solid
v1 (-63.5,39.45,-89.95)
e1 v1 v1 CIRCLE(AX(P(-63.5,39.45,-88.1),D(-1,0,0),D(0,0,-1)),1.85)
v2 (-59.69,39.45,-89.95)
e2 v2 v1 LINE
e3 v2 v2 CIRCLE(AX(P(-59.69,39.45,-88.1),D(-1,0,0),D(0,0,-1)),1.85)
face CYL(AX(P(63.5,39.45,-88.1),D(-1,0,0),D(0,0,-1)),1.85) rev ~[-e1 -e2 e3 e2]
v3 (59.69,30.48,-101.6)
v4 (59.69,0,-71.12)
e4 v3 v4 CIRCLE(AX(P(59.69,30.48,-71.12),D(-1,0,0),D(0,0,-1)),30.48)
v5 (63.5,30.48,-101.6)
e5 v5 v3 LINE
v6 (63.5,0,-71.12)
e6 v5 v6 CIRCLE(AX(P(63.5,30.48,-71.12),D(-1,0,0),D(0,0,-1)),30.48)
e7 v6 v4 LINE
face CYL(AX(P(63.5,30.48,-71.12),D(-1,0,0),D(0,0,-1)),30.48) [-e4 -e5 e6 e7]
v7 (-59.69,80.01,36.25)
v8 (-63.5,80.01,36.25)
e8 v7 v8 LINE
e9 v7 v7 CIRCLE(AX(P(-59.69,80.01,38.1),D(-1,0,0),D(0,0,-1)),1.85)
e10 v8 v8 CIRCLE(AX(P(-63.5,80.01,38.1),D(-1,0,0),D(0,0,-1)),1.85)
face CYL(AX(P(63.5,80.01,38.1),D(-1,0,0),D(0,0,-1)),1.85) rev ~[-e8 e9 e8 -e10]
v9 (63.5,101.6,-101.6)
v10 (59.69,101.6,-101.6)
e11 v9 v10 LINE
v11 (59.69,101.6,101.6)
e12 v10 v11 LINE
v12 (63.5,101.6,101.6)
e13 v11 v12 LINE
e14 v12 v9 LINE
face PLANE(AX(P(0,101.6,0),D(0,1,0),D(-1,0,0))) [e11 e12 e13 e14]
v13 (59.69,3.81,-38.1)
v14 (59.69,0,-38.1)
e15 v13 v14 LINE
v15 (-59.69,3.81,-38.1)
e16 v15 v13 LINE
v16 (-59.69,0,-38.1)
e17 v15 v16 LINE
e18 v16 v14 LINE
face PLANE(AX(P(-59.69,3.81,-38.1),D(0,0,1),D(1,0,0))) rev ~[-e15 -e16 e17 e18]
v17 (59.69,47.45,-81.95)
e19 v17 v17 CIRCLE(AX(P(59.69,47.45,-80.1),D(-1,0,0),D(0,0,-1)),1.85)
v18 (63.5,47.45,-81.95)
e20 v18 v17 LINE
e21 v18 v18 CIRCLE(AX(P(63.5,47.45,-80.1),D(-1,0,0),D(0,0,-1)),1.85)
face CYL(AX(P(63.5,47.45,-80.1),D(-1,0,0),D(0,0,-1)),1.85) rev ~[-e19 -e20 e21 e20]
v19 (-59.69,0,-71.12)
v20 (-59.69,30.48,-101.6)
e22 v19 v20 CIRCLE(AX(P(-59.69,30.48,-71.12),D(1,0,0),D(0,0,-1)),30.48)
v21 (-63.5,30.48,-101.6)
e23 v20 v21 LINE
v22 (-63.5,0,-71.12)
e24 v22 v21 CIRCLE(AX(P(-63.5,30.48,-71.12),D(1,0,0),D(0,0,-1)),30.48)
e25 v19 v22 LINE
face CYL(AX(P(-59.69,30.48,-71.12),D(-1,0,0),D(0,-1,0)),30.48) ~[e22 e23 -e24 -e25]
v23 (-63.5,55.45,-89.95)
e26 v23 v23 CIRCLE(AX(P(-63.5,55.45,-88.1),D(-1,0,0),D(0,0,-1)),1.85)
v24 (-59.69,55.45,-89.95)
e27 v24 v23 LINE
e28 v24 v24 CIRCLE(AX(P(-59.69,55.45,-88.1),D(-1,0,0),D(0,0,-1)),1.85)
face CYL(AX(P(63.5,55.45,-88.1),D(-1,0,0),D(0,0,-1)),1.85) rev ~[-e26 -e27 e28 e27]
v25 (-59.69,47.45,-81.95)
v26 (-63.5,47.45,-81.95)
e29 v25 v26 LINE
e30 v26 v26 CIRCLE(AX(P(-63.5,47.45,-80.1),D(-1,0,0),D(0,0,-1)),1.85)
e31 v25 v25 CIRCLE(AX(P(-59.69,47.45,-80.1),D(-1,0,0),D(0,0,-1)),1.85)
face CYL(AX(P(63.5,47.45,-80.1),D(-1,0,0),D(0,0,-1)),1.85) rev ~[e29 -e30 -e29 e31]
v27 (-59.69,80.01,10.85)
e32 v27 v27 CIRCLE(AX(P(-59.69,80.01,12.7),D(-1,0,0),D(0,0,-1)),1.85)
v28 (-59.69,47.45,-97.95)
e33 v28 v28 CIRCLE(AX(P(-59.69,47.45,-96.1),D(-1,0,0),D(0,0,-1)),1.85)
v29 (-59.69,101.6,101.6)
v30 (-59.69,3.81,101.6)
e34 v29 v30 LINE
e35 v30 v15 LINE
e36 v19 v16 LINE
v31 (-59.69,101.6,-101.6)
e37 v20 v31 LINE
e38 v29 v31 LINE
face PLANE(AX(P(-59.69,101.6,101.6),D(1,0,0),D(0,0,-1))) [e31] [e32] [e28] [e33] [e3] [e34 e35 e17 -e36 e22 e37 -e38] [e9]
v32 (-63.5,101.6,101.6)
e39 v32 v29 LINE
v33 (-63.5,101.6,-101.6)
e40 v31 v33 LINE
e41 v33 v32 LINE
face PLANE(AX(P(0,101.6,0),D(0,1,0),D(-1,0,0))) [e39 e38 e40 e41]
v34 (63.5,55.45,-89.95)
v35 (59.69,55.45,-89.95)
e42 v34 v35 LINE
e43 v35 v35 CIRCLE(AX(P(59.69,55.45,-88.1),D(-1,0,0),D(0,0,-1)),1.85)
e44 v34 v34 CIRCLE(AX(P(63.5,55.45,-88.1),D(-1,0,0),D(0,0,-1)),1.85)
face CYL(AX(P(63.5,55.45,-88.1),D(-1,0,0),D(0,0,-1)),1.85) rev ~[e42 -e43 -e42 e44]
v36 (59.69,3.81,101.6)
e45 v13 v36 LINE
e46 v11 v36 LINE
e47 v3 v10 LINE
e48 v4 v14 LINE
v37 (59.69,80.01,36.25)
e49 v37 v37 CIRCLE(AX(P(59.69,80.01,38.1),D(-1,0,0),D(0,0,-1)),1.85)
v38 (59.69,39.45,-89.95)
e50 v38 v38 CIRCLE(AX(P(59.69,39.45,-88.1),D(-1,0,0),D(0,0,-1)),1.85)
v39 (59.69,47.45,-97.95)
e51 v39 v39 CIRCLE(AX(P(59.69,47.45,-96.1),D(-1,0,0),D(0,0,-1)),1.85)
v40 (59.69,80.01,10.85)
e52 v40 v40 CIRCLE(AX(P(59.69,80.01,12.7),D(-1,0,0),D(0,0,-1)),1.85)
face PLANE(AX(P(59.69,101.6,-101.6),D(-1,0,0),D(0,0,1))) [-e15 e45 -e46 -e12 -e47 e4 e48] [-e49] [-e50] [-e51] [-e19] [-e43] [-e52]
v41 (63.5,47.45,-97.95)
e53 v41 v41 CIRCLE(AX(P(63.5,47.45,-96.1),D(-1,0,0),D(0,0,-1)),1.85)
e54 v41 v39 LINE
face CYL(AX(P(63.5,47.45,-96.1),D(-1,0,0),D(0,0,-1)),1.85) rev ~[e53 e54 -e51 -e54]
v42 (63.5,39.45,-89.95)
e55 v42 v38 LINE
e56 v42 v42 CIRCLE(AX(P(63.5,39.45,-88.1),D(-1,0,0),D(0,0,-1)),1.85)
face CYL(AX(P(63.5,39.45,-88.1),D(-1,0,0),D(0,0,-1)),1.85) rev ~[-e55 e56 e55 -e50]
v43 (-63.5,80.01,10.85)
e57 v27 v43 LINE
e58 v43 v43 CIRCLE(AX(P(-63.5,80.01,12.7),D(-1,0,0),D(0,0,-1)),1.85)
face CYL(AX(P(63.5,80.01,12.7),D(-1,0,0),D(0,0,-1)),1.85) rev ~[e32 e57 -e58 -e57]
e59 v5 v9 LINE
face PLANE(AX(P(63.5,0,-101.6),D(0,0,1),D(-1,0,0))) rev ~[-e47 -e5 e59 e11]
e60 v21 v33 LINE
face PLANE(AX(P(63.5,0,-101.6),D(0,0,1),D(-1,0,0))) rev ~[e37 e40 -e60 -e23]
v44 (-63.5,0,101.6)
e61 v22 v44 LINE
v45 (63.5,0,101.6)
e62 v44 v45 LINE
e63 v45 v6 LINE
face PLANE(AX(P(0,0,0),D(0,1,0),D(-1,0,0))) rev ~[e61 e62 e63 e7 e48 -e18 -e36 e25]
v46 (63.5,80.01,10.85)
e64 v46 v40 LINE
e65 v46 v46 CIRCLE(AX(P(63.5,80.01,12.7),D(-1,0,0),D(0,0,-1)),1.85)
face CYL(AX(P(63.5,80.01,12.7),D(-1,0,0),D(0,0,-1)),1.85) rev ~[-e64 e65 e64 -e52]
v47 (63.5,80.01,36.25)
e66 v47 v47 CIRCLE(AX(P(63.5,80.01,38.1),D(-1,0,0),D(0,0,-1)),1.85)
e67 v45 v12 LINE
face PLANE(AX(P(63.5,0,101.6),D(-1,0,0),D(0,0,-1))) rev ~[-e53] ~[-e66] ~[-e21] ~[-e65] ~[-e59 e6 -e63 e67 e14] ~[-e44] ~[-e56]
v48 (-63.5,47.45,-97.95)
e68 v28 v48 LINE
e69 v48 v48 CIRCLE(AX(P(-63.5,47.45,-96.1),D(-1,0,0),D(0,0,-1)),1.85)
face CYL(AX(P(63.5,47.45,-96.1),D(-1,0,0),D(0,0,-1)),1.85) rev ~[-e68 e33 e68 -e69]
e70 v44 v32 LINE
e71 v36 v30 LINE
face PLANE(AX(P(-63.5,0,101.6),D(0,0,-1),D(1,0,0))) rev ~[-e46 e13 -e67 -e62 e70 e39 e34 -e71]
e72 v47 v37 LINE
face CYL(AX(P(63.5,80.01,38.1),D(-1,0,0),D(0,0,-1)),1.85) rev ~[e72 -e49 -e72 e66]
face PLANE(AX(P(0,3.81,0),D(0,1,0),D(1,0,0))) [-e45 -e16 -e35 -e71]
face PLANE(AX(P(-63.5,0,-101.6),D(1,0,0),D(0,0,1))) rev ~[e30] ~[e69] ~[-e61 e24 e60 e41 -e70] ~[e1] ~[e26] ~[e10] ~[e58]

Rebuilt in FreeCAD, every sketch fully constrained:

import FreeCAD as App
import Part
import Sketcher
from FreeCAD import Vector
Q = App.Units.Quantity


def edges_at(feature, points):
    """Names of the edges that pass closest to the given points."""
    edges = feature.Shape.Edges
    near = lambda p: min(range(len(edges)), key=lambda i: edges[i].distToShape(Part.Vertex(*p))[0])
    return sorted({f"Edge{near(p) + 1}" for p in points})

doc = App.newDocument("Part")
body = doc.addObject("PartDesign::Body", "Body")

# Sketch on XZ plane
sketch1 = body.newObject("Sketcher::SketchObject", "Sketch")
sketch1.AttachmentSupport = (doc.getObject("XZ_Plane"), [""])
sketch1.MapMode = "FlatFace"
sketch1.addGeometry([
    Part.LineSegment(Vector(64, 102, 0), Vector(64, -102, 0)),
    Part.LineSegment(Vector(64, -102, 0), Vector(-64, -102, 0)),
    Part.LineSegment(Vector(-64, -102, 0), Vector(-64, 102, 0)),
    Part.LineSegment(Vector(-64, 102, 0), Vector(64, 102, 0)),
], False)
sketch1.addConstraint([
    Sketcher.Constraint("Coincident", 0, 2, 1, 1),
    Sketcher.Constraint("Coincident", 1, 2, 2, 1),
    Sketcher.Constraint("Coincident", 2, 2, 3, 1),
    Sketcher.Constraint("Coincident", 3, 2, 0, 1),
    Sketcher.Constraint("Vertical", 0),
    Sketcher.Constraint("Horizontal", 1),
    Sketcher.Constraint("Vertical", 2),
    Sketcher.Constraint("Horizontal", 3),
    Sketcher.Constraint("Symmetric", 0, 2, 2, 2, -1, 1),
    Sketcher.Constraint("DistanceX", 1, 2, 1, 1, Q("5 in")),
    Sketcher.Constraint("DistanceY", 0, 2, 0, 1, Q("8 in")),
])
pad1 = body.newObject("PartDesign::Pad", "Pad")
pad1.Profile = sketch1
pad1.Length = Q("4 in")
pad1.Reversed = True

# Sketch on XZ plane
sketch2 = body.newObject("Sketcher::SketchObject", "Sketch001")
sketch2.AttachmentSupport = (doc.getObject("XZ_Plane"), [""])
sketch2.MapMode = "FlatFace"
sketch2.AttachmentOffset = App.Placement(Vector(0, 0, -4 * 25.4), App.Rotation())
sketch2.addGeometry([
    Part.LineSegment(Vector(60, 102, 0), Vector(60, -102, 0)),
    Part.LineSegment(Vector(60, -102, 0), Vector(-60, -102, 0)),
    Part.LineSegment(Vector(-60, -102, 0), Vector(-60, 102, 0)),
    Part.LineSegment(Vector(-60, 102, 0), Vector(60, 102, 0)),
], False)
sketch2.addConstraint([
    Sketcher.Constraint("Coincident", 0, 2, 1, 1),
    Sketcher.Constraint("Coincident", 1, 2, 2, 1),
    Sketcher.Constraint("Coincident", 2, 2, 3, 1),
    Sketcher.Constraint("Coincident", 3, 2, 0, 1),
    Sketcher.Constraint("Vertical", 0),
    Sketcher.Constraint("Horizontal", 1),
    Sketcher.Constraint("Vertical", 2),
    Sketcher.Constraint("Horizontal", 3),
    Sketcher.Constraint("Symmetric", 0, 2, 2, 2, -1, 1),
    Sketcher.Constraint("DistanceX", 1, 2, 1, 1, Q("4.7 in")),
    Sketcher.Constraint("DistanceY", 0, 2, 0, 1, Q("8 in")),
])
pocket1 = body.newObject("PartDesign::Pocket", "Pocket")
pocket1.Profile = sketch2
pocket1.Length = Q("3.85 in")
pocket1.Reversed = True

# Sketch on XZ plane
sketch3 = body.newObject("Sketcher::SketchObject", "Sketch002")
sketch3.AttachmentSupport = (doc.getObject("XZ_Plane"), [""])
sketch3.MapMode = "FlatFace"
sketch3.AttachmentOffset = App.Placement(Vector(0, 0, -0.15 * 25.4), App.Rotation())
sketch3.addGeometry([
    Part.LineSegment(Vector(60, -38, 0), Vector(60, -102, 0)),
    Part.LineSegment(Vector(60, -102, 0), Vector(-60, -102, 0)),
    Part.LineSegment(Vector(-60, -102, 0), Vector(-60, -38, 0)),
    Part.LineSegment(Vector(-60, -38, 0), Vector(60, -38, 0)),
], False)
sketch3.addConstraint([
    Sketcher.Constraint("Coincident", 0, 2, 1, 1),
    Sketcher.Constraint("Coincident", 1, 2, 2, 1),
    Sketcher.Constraint("Coincident", 2, 2, 3, 1),
    Sketcher.Constraint("Coincident", 3, 2, 0, 1),
    Sketcher.Constraint("Vertical", 0),
    Sketcher.Constraint("Horizontal", 1),
    Sketcher.Constraint("Vertical", 2),
    Sketcher.Constraint("Horizontal", 3),
    Sketcher.Constraint("DistanceY", 0, 2, 0, 1, Q("2.5 in")),
    Sketcher.Constraint("DistanceX", 1, 2, 1, 1, Q("4.7 in")),
    Sketcher.Constraint("DistanceY", 0, 2, -1, 1, Q("4 in")),
    Sketcher.Constraint("DistanceX", -1, 1, 0, 2, Q("2.35 in")),
])
pocket2 = body.newObject("PartDesign::Pocket", "Pocket001")
pocket2.Profile = sketch3
pocket2.Length = Q("0.15 in")
pocket2.Reversed = True
doc.recompute()

fillet = body.newObject("PartDesign::Fillet", "Fillet")
fillet.Base = (pocket2, edges_at(pocket2, [(61.595, 0, -101.6), (-61.595, 0, -101.6)]))
fillet.Radius = Q("1.2 in")

# Sketch on YZ plane
sketch4 = body.newObject("Sketcher::SketchObject", "Sketch003")
sketch4.AttachmentSupport = (doc.getObject("YZ_Plane"), [""])
sketch4.MapMode = "FlatFace"
sketch4.AttachmentOffset = App.Placement(Vector(0, 0, 2.5 * 25.4), App.Rotation())
sketch4.addGeometry([
    Part.Circle(Vector(55.5, -88.1, 0), Vector(0, 0, 1), 1.9),
    Part.Circle(Vector(47.5, -96.1, 0), Vector(0, 0, 1), 1.9),
    Part.Circle(Vector(47.5, -80.1, 0), Vector(0, 0, 1), 1.9),
    Part.Circle(Vector(39.5, -88.1, 0), Vector(0, 0, 1), 1.9),
], False)
sketch4.addConstraint([
    Sketcher.Constraint("Equal", 0, 1),
    Sketcher.Constraint("Equal", 1, 2),
    Sketcher.Constraint("Equal", 2, 3),
    Sketcher.Constraint("Horizontal", 0, 3, 3, 3),
    Sketcher.Constraint("Vertical", 1, 3, 2, 3),
    Sketcher.Constraint("Diameter", 0, 3.7),
    Sketcher.Constraint("DistanceY", 0, 3, -1, 1, Q("3.4685 in")),
    Sketcher.Constraint("DistanceX", -1, 1, 1, 3, Q("1.8681 in")),
    Sketcher.Constraint("DistanceX", -1, 1, 0, 3, 55.45),
    Sketcher.Constraint("DistanceY", 1, 3, -1, 1, 96.1),
    Sketcher.Constraint("DistanceY", 2, 3, -1, 1, 80.1),
    Sketcher.Constraint("DistanceX", -1, 1, 3, 3, 39.45),
])
doc.recompute()
hole = body.newObject("PartDesign::Hole", "Hole")
hole.Profile = sketch4
hole.ThreadType = "None"
hole.Diameter = 3.7
hole.DepthType = "ThroughAll"

# Sketch on YZ plane
sketch5 = body.newObject("Sketcher::SketchObject", "Sketch004")
sketch5.AttachmentSupport = (doc.getObject("YZ_Plane"), [""])
sketch5.MapMode = "FlatFace"
sketch5.AttachmentOffset = App.Placement(Vector(0, 0, 2.5 * 25.4), App.Rotation())
sketch5.addGeometry([
    Part.Circle(Vector(80, 38.1, 0), Vector(0, 0, 1), 1.9),
    Part.Circle(Vector(80, 12.7, 0), Vector(0, 0, 1), 1.9),
], False)
sketch5.addConstraint([
    Sketcher.Constraint("Equal", 0, 1),
    Sketcher.Constraint("Vertical", 0, 3, 1, 3),
    Sketcher.Constraint("DistanceY", 1, 3, 0, 3, Q("1 in")),
    Sketcher.Constraint("DistanceY", -1, 1, 0, 3, Q("1.5 in")),
    Sketcher.Constraint("Diameter", 0, 3.7),
    Sketcher.Constraint("DistanceX", -1, 1, 0, 3, Q("3.15 in")),
])
doc.recompute()
hole2 = body.newObject("PartDesign::Hole", "Hole001")
hole2.Profile = sketch5
hole2.ThreadType = "None"
hole2.Diameter = 3.7
hole2.DepthType = "ThroughAll"

doc.recompute()
